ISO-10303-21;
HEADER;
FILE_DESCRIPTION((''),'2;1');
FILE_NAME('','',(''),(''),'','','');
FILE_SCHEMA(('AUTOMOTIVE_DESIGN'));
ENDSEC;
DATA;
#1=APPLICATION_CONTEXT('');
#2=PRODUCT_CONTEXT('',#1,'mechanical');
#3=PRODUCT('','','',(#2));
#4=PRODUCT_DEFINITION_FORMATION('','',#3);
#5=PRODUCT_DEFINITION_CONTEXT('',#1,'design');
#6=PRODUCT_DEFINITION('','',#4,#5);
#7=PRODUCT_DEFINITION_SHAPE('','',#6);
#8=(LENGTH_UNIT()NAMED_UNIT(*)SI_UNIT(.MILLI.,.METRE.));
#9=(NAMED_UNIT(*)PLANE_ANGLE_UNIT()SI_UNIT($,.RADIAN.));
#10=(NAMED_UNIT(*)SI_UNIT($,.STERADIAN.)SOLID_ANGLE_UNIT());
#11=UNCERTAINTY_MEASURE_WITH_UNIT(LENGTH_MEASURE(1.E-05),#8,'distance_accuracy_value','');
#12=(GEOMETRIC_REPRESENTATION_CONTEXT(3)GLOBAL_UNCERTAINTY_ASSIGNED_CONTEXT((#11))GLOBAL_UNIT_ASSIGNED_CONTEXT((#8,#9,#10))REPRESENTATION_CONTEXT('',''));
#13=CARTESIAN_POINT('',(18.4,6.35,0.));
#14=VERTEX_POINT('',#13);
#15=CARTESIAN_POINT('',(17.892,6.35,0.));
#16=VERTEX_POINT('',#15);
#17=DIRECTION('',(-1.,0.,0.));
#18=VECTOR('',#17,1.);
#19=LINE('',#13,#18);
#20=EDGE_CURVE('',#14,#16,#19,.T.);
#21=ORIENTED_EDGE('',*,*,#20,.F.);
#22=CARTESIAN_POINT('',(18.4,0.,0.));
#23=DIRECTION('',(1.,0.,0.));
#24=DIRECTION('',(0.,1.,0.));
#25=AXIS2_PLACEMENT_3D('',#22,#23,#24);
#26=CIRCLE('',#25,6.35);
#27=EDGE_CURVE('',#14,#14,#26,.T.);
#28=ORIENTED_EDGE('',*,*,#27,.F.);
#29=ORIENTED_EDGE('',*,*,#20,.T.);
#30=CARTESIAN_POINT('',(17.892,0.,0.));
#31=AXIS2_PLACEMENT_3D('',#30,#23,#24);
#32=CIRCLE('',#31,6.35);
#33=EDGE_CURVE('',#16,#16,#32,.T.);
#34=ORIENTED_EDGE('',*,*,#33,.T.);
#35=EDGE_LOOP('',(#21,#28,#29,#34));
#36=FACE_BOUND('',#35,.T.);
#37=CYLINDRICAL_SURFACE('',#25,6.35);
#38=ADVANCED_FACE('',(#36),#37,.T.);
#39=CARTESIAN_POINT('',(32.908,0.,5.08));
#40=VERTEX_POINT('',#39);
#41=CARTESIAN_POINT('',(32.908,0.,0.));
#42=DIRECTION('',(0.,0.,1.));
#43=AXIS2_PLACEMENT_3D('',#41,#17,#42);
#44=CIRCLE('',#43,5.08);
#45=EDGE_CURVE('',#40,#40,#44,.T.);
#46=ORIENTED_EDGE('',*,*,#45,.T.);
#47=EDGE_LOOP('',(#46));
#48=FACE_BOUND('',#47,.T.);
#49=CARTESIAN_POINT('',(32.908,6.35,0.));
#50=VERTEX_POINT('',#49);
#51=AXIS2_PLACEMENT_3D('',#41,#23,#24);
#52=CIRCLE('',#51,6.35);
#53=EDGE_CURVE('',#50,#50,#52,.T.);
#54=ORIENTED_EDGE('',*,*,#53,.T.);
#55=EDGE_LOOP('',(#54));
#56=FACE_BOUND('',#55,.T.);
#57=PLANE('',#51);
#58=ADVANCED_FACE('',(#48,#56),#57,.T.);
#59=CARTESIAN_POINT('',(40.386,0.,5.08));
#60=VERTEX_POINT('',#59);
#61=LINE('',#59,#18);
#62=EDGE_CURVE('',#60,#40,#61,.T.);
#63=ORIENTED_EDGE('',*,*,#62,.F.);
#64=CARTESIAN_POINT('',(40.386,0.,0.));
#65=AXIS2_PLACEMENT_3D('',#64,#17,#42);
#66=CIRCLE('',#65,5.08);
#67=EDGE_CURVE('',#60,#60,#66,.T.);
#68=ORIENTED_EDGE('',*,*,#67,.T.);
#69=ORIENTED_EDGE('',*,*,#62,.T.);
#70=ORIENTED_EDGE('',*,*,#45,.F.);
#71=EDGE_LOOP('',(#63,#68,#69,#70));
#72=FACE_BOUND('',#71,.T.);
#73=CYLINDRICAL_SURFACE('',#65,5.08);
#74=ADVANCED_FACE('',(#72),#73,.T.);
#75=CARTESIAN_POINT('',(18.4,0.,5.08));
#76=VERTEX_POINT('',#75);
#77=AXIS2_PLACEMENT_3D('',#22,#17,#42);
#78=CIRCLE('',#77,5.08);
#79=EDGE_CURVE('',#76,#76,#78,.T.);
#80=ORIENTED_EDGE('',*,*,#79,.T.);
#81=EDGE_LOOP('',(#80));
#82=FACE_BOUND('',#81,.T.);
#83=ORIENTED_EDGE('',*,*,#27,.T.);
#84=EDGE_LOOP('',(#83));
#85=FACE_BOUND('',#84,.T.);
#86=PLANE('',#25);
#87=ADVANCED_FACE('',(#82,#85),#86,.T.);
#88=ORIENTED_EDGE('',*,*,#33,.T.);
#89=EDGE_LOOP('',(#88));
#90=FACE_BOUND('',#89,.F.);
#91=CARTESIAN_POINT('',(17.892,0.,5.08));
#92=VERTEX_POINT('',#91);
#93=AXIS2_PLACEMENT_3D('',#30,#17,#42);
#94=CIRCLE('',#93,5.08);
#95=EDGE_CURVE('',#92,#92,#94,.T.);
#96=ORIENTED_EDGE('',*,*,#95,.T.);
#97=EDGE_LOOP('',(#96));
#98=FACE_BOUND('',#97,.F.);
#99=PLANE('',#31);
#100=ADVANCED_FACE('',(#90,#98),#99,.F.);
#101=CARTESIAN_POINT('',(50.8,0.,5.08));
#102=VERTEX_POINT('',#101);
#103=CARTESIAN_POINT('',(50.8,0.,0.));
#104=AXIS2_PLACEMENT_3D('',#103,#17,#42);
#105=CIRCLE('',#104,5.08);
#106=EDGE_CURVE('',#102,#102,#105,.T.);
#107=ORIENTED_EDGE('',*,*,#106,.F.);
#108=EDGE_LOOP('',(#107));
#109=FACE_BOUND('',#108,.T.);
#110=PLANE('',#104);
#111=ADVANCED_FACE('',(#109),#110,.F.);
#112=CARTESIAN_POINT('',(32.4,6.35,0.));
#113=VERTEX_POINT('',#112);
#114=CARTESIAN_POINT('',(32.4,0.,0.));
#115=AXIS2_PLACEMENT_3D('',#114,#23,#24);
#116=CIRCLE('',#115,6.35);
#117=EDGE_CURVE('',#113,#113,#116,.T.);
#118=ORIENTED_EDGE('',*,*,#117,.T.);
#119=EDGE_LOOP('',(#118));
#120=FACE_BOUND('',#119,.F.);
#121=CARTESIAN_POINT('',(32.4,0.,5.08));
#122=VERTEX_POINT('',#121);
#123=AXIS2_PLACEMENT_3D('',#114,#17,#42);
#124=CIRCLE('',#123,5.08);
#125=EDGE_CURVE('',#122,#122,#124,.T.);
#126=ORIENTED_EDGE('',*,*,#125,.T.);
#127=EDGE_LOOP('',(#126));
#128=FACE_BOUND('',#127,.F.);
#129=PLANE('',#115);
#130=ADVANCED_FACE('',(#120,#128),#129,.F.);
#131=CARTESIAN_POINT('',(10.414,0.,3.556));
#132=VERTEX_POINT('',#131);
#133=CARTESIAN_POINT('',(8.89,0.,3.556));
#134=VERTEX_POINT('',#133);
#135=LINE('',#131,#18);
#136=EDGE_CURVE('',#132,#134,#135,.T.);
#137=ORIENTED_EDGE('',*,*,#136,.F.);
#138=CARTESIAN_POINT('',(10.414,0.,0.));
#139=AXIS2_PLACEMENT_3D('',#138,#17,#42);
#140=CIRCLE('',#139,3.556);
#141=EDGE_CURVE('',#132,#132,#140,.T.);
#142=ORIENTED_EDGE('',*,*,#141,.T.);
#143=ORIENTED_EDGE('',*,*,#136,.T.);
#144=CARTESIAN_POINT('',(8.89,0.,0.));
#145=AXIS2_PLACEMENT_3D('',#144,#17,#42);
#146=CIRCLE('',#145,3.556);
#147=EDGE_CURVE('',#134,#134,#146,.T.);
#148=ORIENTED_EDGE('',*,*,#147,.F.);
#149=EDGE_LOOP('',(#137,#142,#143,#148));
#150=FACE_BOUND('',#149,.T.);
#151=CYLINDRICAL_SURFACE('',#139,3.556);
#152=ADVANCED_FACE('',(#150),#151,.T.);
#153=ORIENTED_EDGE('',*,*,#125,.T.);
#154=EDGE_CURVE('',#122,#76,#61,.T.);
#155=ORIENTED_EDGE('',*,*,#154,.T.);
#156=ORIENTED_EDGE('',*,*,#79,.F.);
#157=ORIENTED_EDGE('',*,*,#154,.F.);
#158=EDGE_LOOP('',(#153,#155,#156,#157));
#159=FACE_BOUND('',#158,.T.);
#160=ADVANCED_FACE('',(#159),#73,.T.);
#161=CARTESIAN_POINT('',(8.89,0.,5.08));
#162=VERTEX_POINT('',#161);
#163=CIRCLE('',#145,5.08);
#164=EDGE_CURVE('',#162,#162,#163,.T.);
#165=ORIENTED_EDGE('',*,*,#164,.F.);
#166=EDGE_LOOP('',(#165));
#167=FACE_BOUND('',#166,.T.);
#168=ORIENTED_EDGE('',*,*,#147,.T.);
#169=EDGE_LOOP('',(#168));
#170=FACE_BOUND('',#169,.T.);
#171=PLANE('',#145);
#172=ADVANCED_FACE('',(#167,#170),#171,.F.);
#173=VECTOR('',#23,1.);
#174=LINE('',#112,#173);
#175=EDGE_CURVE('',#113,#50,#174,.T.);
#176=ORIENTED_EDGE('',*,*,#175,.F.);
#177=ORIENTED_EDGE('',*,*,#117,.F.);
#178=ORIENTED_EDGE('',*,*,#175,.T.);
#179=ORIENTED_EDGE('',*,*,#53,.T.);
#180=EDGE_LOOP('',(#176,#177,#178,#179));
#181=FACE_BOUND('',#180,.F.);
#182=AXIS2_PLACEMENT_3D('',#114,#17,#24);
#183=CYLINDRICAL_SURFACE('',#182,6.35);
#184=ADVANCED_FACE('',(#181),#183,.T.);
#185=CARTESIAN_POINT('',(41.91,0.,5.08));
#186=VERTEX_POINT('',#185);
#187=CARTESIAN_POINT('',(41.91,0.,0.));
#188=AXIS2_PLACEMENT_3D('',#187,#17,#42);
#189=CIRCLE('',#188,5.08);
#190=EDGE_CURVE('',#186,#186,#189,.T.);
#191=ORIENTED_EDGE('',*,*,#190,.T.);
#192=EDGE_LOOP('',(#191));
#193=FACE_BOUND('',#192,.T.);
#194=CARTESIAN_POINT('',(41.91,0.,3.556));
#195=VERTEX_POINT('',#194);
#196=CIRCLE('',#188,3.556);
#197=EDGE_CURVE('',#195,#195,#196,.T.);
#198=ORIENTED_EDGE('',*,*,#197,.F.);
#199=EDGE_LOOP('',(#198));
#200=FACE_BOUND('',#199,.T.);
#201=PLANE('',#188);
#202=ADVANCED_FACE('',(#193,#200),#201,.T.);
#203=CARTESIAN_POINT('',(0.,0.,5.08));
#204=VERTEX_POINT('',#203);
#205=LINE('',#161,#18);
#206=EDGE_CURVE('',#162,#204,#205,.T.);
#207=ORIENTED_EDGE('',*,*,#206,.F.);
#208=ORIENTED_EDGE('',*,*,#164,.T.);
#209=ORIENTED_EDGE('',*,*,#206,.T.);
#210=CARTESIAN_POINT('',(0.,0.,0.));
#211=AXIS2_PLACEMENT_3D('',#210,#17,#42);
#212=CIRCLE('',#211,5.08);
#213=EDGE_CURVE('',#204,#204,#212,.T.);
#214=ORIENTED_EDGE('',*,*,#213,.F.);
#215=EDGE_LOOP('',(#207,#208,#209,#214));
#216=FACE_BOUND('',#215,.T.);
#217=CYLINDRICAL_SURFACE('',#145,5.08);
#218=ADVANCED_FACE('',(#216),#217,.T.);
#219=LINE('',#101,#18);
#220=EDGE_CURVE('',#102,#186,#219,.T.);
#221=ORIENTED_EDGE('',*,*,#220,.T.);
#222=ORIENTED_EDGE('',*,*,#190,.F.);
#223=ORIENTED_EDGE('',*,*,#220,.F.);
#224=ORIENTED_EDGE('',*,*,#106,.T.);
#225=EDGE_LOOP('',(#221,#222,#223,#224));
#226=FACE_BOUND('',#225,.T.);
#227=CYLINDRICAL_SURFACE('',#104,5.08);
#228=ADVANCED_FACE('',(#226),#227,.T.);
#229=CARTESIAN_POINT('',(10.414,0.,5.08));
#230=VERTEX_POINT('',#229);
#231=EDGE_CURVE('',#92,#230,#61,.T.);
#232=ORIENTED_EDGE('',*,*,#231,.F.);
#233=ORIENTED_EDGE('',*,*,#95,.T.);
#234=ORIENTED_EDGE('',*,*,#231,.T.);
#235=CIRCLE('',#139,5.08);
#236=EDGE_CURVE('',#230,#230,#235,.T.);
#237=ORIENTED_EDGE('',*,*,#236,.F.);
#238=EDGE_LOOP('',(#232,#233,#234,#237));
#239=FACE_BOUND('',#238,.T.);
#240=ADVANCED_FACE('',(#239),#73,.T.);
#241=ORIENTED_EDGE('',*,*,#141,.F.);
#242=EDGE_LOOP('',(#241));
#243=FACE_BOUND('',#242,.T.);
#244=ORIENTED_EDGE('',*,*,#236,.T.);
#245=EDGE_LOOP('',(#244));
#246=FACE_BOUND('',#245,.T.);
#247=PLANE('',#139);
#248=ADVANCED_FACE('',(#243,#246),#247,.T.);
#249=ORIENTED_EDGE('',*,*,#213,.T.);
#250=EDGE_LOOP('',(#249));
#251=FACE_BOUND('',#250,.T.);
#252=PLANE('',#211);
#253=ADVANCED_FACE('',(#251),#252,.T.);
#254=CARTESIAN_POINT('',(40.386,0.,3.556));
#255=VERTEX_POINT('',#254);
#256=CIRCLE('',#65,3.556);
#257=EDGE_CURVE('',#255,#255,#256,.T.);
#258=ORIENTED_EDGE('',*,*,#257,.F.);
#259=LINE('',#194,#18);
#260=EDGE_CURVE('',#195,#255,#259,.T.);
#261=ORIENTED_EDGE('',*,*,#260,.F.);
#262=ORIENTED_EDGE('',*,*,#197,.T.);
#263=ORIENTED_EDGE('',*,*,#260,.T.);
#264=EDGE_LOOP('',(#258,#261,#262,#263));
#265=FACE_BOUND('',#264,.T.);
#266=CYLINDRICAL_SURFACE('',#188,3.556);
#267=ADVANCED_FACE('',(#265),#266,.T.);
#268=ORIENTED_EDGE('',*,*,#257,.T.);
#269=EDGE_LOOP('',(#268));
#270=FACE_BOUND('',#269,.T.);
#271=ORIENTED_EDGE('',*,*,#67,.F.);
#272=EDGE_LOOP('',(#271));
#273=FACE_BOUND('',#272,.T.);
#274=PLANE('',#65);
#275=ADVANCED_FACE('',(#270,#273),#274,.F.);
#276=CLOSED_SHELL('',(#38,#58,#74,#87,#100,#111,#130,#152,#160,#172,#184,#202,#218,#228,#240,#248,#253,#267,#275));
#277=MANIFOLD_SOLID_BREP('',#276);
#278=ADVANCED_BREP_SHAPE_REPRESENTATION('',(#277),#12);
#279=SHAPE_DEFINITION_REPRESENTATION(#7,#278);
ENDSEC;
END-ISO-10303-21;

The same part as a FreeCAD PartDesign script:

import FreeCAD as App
import Part
import Sketcher
Q = App.Units.Quantity

doc = App.newDocument("Part")
params = doc.addObject("Spreadsheet::Sheet", "Params")
for row, (alias, value) in enumerate([
    ("sketch1_width", "2 in"),
    ("sketch1_height", "0.2 in"),
    ("sketch1_width2", "0.35 in"),
    ("sketch1_width3", "0.06 in"),
    ("revolution_angle", "360 deg"),
    ("sketch2_diameter", "0.5 in"),
    ("pad1_length", "0.02 in"),
    ("sketch3_diameter", "0.5 in"),
    ("pad2_length", "0.02 in"),
], start=1):
    params.set(f"A{row}", alias)
    params.set(f"B{row}", "=" + value)
    params.setAlias(f"B{row}", alias)

body = doc.addObject("PartDesign::Body", "Body")

# Sketch on XZ plane
sketch1 = doc.addObject("Sketcher::SketchObject", "Sketch")
body.addObject(sketch1)
sketch1.AttachmentSupport = (doc.XZ_Plane, [""])
sketch1.MapMode = "FlatFace"
sketch1.addGeometry(Part.LineSegment(App.Vector(0, 5.08, 0), App.Vector(0, 0, 0)), False)
sketch1.addGeometry(Part.LineSegment(App.Vector(0, 0, 0), App.Vector(50.8, 0, 0)), False)
sketch1.addGeometry(Part.LineSegment(App.Vector(50.8, 0, 0), App.Vector(50.8, 5.08, 0)), False)
sketch1.addGeometry(Part.LineSegment(App.Vector(50.8, 5.08, 0), App.Vector(41.91, 5.08, 0)), False)
sketch1.addGeometry(Part.LineSegment(App.Vector(41.91, 5.08, 0), App.Vector(41.91, 3.556, 0)), False)
sketch1.addGeometry(Part.LineSegment(App.Vector(41.91, 3.556, 0), App.Vector(40.386, 3.556, 0)), False)
sketch1.addGeometry(Part.LineSegment(App.Vector(40.386, 3.556, 0), App.Vector(40.386, 5.08, 0)), False)
sketch1.addGeometry(Part.LineSegment(App.Vector(40.386, 5.08, 0), App.Vector(10.414, 5.08, 0)), False)
sketch1.addGeometry(Part.LineSegment(App.Vector(10.414, 5.08, 0), App.Vector(10.414, 3.556, 0)), False)
sketch1.addGeometry(Part.LineSegment(App.Vector(10.414, 3.556, 0), App.Vector(8.89, 3.556, 0)), False)
sketch1.addGeometry(Part.LineSegment(App.Vector(8.89, 3.556, 0), App.Vector(8.89, 5.08, 0)), False)
sketch1.addGeometry(Part.LineSegment(App.Vector(8.89, 5.08, 0), App.Vector(0, 5.08, 0)), False)
sketch1.addConstraint(Sketcher.Constraint("Coincident", 0, 2, 1, 1))
sketch1.addConstraint(Sketcher.Constraint("Coincident", 1, 2, 2, 1))
sketch1.addConstraint(Sketcher.Constraint("Coincident", 2, 2, 3, 1))
sketch1.addConstraint(Sketcher.Constraint("Coincident", 3, 2, 4, 1))
sketch1.addConstraint(Sketcher.Constraint("Coincident", 4, 2, 5, 1))
sketch1.addConstraint(Sketcher.Constraint("Coincident", 5, 2, 6, 1))
sketch1.addConstraint(Sketcher.Constraint("Coincident", 6, 2, 7, 1))
sketch1.addConstraint(Sketcher.Constraint("Coincident", 7, 2, 8, 1))
sketch1.addConstraint(Sketcher.Constraint("Coincident", 8, 2, 9, 1))
sketch1.addConstraint(Sketcher.Constraint("Coincident", 9, 2, 10, 1))
sketch1.addConstraint(Sketcher.Constraint("Coincident", 10, 2, 11, 1))
sketch1.addConstraint(Sketcher.Constraint("Coincident", 11, 2, 0, 1))
sketch1.addConstraint(Sketcher.Constraint("Vertical", 0))
sketch1.addConstraint(Sketcher.Constraint("Horizontal", 1))
sketch1.addConstraint(Sketcher.Constraint("Vertical", 2))
sketch1.addConstraint(Sketcher.Constraint("Horizontal", 3))
sketch1.addConstraint(Sketcher.Constraint("Vertical", 4))
sketch1.addConstraint(Sketcher.Constraint("Horizontal", 5))
sketch1.addConstraint(Sketcher.Constraint("Vertical", 6))
sketch1.addConstraint(Sketcher.Constraint("Horizontal", 7))
sketch1.addConstraint(Sketcher.Constraint("Vertical", 8))
sketch1.addConstraint(Sketcher.Constraint("Horizontal", 9))
sketch1.addConstraint(Sketcher.Constraint("Vertical", 10))
sketch1.addConstraint(Sketcher.Constraint("Horizontal", 11))
sketch1.addConstraint(Sketcher.Constraint("Coincident", 0, 2, -1, 1))
sketch1.addConstraint(Sketcher.Constraint("Horizontal", 3, 2, 6, 2))
sketch1.addConstraint(Sketcher.Constraint("Horizontal", 5, 2, 8, 2))
sketch1.addConstraint(Sketcher.Constraint("Horizontal", 7, 2, 10, 2))
sketch1.addConstraint(Sketcher.Constraint("Equal", 5, 9))
sketch1.addConstraint(Sketcher.Constraint("Equal", 3, 11))
sketch1.addConstraint(Sketcher.Constraint("Equal", 9, 4))
sketch1.addConstraint(Sketcher.Constraint("DistanceX", 1, 1, 1, 2, Q("2 in")))
sketch1.addConstraint(Sketcher.Constraint("DistanceY", 0, 2, 0, 1, Q("0.2 in")))
sketch1.addConstraint(Sketcher.Constraint("DistanceX", 3, 2, 3, 1, Q("0.35 in")))
sketch1.addConstraint(Sketcher.Constraint("DistanceX", 5, 2, 5, 1, Q("0.06 in")))
sketch1.setExpression("Constraints[31]", "Params.sketch1_width")
sketch1.setExpression("Constraints[32]", "Params.sketch1_height")
sketch1.setExpression("Constraints[33]", "Params.sketch1_width2")
sketch1.setExpression("Constraints[34]", "Params.sketch1_width3")
revolution = doc.addObject("PartDesign::Revolution", "Revolution")
body.addObject(revolution)
revolution.Profile = sketch1
revolution.ReferenceAxis = (sketch1, ["H_Axis"])
revolution.setExpression("Angle", "Params.revolution_angle")

# Sketch on YZ plane
sketch2 = doc.addObject("Sketcher::SketchObject", "Sketch001")
body.addObject(sketch2)
sketch2.AttachmentSupport = (doc.YZ_Plane, [""])
sketch2.MapMode = "FlatFace"
sketch2.AttachmentOffset = App.Placement(App.Vector(0, 0, 32.4), App.Rotation())
sketch2.addGeometry(Part.Circle(App.Vector(0, 0, 0), App.Vector(0, 0, 1), 6.35), False)
sketch2.addConstraint(Sketcher.Constraint("Coincident", 0, 3, -1, 1))
sketch2.addConstraint(Sketcher.Constraint("Diameter", 0, Q("0.5 in")))
sketch2.setExpression("Constraints[1]", "Params.sketch2_diameter")
pad1 = doc.addObject("PartDesign::Pad", "Pad")
body.addObject(pad1)
pad1.Profile = sketch2
pad1.setExpression("Length", "Params.pad1_length")

# Sketch on YZ plane
sketch3 = doc.addObject("Sketcher::SketchObject", "Sketch002")
body.addObject(sketch3)
sketch3.AttachmentSupport = (doc.YZ_Plane, [""])
sketch3.MapMode = "FlatFace"
sketch3.AttachmentOffset = App.Placement(App.Vector(0, 0, 18.4), App.Rotation())
sketch3.addGeometry(Part.Circle(App.Vector(0, 0, 0), App.Vector(0, 0, 1), 6.35), False)
sketch3.addConstraint(Sketcher.Constraint("Coincident", 0, 3, -1, 1))
sketch3.addConstraint(Sketcher.Constraint("Diameter", 0, Q("0.5 in")))
sketch3.setExpression("Constraints[1]", "Params.sketch3_diameter")
pad2 = doc.addObject("PartDesign::Pad", "Pad001")
body.addObject(pad2)
pad2.Profile = sketch3
pad2.setExpression("Length", "Params.pad2_length")
pad2.Reversed = True

doc.recompute()
